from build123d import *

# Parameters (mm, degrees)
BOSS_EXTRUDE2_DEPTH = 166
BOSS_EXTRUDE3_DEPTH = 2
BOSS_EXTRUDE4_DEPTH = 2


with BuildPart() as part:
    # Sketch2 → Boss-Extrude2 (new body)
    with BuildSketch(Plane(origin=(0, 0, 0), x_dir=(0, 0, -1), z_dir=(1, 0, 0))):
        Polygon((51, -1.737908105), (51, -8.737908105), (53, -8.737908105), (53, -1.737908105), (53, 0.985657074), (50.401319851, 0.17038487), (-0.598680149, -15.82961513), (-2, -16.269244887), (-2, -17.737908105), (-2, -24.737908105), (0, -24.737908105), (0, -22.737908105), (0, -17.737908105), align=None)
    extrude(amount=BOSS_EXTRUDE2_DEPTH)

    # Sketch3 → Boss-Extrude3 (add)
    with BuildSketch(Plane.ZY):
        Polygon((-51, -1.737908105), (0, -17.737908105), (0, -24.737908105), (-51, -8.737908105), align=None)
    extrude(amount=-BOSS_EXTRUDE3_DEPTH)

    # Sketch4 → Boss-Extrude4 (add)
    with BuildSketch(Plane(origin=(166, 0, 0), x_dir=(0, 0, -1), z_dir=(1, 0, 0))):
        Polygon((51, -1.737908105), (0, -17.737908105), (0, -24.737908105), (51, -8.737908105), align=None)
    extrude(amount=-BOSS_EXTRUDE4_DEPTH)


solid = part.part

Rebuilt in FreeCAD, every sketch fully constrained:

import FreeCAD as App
import Part
import Sketcher

V = App.Vector

doc = App.newDocument("Part")
body = doc.addObject("PartDesign::Body", "Body")

# Sketch on YZ plane
sketch1 = body.newObject("Sketcher::SketchObject", "Sketch")
sketch1.AttachmentSupport = (doc.getObject("YZ_Plane"), [""])
sketch1.MapMode = "FlatFace"
sketch1.addGeometry([
    Part.LineSegment(V(-1.7, -51, 0), V(-8.7, -51, 0)),  # 0
    Part.LineSegment(V(-8.7, -51, 0), V(-8.7, -53, 0)),  # 1
    Part.LineSegment(V(-8.7, -53, 0), V(1, -53, 0)),  # 2
    Part.LineSegment(V(1, -53, 0), V(0.2, -50.4, 0)),  # 3
    Part.LineSegment(V(0.2, -50.4, 0), V(-15.8, 0.6, 0)),  # 4
    Part.LineSegment(V(-15.8, 0.6, 0), V(-16.3, 2, 0)),  # 5
    Part.LineSegment(V(-16.3, 2, 0), V(-24.7, 2, 0)),  # 6
    Part.LineSegment(V(-24.7, 2, 0), V(-24.7, 0, 0)),  # 7
    Part.LineSegment(V(-24.7, 0, 0), V(-17.7, 0, 0)),  # 8
    Part.LineSegment(V(-17.7, 0, 0), V(-1.7, -51, 0)),  # 9
], False)
sketch1.addConstraint([
    Sketcher.Constraint("Coincident", 0, 2, 1, 1),
    Sketcher.Constraint("Coincident", 1, 2, 2, 1),
    Sketcher.Constraint("Coincident", 2, 2, 3, 1),
    Sketcher.Constraint("Coincident", 3, 2, 4, 1),
    Sketcher.Constraint("Coincident", 4, 2, 5, 1),
    Sketcher.Constraint("Coincident", 5, 2, 6, 1),
    Sketcher.Constraint("Coincident", 6, 2, 7, 1),
    Sketcher.Constraint("Coincident", 7, 2, 8, 1),
    Sketcher.Constraint("Coincident", 8, 2, 9, 1),
    Sketcher.Constraint("Coincident", 9, 2, 0, 1),
    Sketcher.Constraint("Horizontal", 0),
    Sketcher.Constraint("Vertical", 1),
    Sketcher.Constraint("Horizontal", 2),
    Sketcher.Constraint("Horizontal", 6),
    Sketcher.Constraint("Vertical", 7),
    Sketcher.Constraint("Horizontal", 8),
    Sketcher.Constraint("PointOnObject", 7, 2, -1),
    Sketcher.Constraint("Parallel", 3, 4),
    Sketcher.Constraint("Parallel", 4, 5),
    Sketcher.Constraint("Parallel", 5, 9),
    Sketcher.Constraint("Equal", 0, 8),
    Sketcher.Constraint("Equal", 1, 7),
    Sketcher.Constraint("Equal", 4, 9),
    Sketcher.Constraint("DistanceX", 0, 2, 0, 1, 7.0),
    Sketcher.Constraint("DistanceY", 1, 2, 1, 1, 2.0),
    Sketcher.Constraint("DistanceY", 0, 2, -1, 1, 51.0),
    Sketcher.Constraint("DistanceX", 4, 2, 3, 2, 16.0),
    Sketcher.Constraint("DistanceX", 2, 1, 2, 2, 9.723565),
    Sketcher.Constraint("DistanceX", 0, 2, -1, 1, 8.737908),
    Sketcher.Constraint("DistanceY", 3, 2, -1, 1, 50.40132),
])
pad1 = body.newObject("PartDesign::Pad", "Pad")
pad1.Profile = sketch1
pad1.Length = 166

# Sketch on YZ plane
sketch2 = body.newObject("Sketcher::SketchObject", "Sketch001")
sketch2.AttachmentSupport = (doc.getObject("YZ_Plane"), [""])
sketch2.MapMode = "FlatFace"
sketch2.addGeometry([
    Part.LineSegment(V(-18, 0, 0), V(-2, -51, 0)),
    Part.LineSegment(V(-2, -51, 0), V(-9, -51, 0)),
    Part.LineSegment(V(-9, -51, 0), V(-25, 0, 0)),
    Part.LineSegment(V(-25, 0, 0), V(-18, 0, 0)),
], False)
sketch2.addConstraint([
    Sketcher.Constraint("Coincident", 0, 2, 1, 1),
    Sketcher.Constraint("Coincident", 1, 2, 2, 1),
    Sketcher.Constraint("Coincident", 2, 2, 3, 1),
    Sketcher.Constraint("Coincident", 3, 2, 0, 1),
    Sketcher.Constraint("Horizontal", 1),
    Sketcher.Constraint("Horizontal", 3),
    Sketcher.Constraint("PointOnObject", 2, 2, -1),
    Sketcher.Constraint("Parallel", 0, 2),
    Sketcher.Constraint("DistanceX", 1, 2, 1, 1, 7.0),
    Sketcher.Constraint("DistanceY", 0, 2, -1, 1, 51.0),
    Sketcher.Constraint("DistanceX", 2, 2, 1, 2, 16.0),
    Sketcher.Constraint("DistanceX", 0, 2, -1, 1, 1.737908),
])
pad2 = body.newObject("PartDesign::Pad", "Pad001")
pad2.Profile = sketch2
pad2.Length = 2

# Sketch on YZ plane
sketch3 = body.newObject("Sketcher::SketchObject", "Sketch002")
sketch3.AttachmentSupport = (doc.getObject("YZ_Plane"), [""])
sketch3.MapMode = "FlatFace"
sketch3.AttachmentOffset = App.Placement(V(0, 0, 166), App.Rotation())
sketch3.addGeometry([
    Part.LineSegment(V(-2, -51, 0), V(-18, 0, 0)),
    Part.LineSegment(V(-18, 0, 0), V(-25, 0, 0)),
    Part.LineSegment(V(-25, 0, 0), V(-9, -51, 0)),
    Part.LineSegment(V(-9, -51, 0), V(-2, -51, 0)),
], False)
sketch3.addConstraint([
    Sketcher.Constraint("Coincident", 0, 2, 1, 1),
    Sketcher.Constraint("Coincident", 1, 2, 2, 1),
    Sketcher.Constraint("Coincident", 2, 2, 3, 1),
    Sketcher.Constraint("Coincident", 3, 2, 0, 1),
    Sketcher.Constraint("Horizontal", 1),
    Sketcher.Constraint("Horizontal", 3),
    Sketcher.Constraint("PointOnObject", 0, 2, -1),
    Sketcher.Constraint("Parallel", 0, 2),
    Sketcher.Constraint("DistanceX", 1, 2, 1, 1, 7.0),
    Sketcher.Constraint("DistanceY", 2, 2, -1, 1, 51.0),
    Sketcher.Constraint("DistanceX", 0, 2, 2, 2, 9.0),
    Sketcher.Constraint("DistanceX", 0, 2, -1, 1, 17.737908),
])
pad3 = body.newObject("PartDesign::Pad", "Pad002")
pad3.Profile = sketch3
pad3.Length = 2
pad3.Reversed = True

doc.recompute()
